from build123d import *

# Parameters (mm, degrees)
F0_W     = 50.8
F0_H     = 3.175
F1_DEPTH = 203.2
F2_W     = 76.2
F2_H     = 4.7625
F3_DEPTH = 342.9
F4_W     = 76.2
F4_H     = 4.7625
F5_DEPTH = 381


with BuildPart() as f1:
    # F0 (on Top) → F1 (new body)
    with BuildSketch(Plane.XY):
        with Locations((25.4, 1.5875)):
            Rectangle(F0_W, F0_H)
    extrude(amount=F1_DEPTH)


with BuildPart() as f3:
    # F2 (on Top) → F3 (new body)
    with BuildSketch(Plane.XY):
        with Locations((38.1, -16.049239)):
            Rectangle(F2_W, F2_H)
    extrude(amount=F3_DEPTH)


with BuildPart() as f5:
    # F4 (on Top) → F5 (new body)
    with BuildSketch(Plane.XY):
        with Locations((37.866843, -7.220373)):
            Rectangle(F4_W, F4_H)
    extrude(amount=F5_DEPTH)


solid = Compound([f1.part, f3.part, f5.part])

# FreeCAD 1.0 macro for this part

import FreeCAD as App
import Part
import Sketcher
from FreeCAD import Vector
Q = App.Units.Quantity


def add_polygon(sketch, points):
    """Adds a closed chain of lines whose ends are joined by coincident constraints."""
    first, n = sketch.GeometryCount, len(points)
    for a, b in zip(points, points[1:] + points[:1]):
        sketch.addGeometry(Part.LineSegment(App.Vector(*a, 0), App.Vector(*b, 0)), False)
    for i in range(n):
        sketch.addConstraint(Sketcher.Constraint("Coincident", first + i, 2, first + (i + 1) % n, 1))

doc = App.newDocument("Part")
body = doc.addObject("PartDesign::Body", "Body")

sketch1 = body.newObject("Sketcher::SketchObject", "Sketch")
sketch1.AttachmentSupport = (doc.getObject("XY_Plane"), [""])
sketch1.MapMode = "FlatFace"
add_polygon(sketch1, [(0, 3.2), (0, 0), (50.8, 0), (50.8, 3.2)])
sketch1.addConstraint([
    Sketcher.Constraint("Vertical", 0),
    Sketcher.Constraint("Horizontal", 1),
    Sketcher.Constraint("Vertical", 2),
    Sketcher.Constraint("Horizontal", 3),
    Sketcher.Constraint("Coincident", 0, 2, -1, 1),
    Sketcher.Constraint("DistanceX", 1, 1, 1, 2, Q("2 in")),
    Sketcher.Constraint("DistanceY", 0, 2, 0, 1, Q("0.125 in")),
])
pad1 = body.newObject("PartDesign::Pad", "Pad")
pad1.Profile = sketch1
pad1.Length = Q("8 in")
body2 = doc.addObject("PartDesign::Body", "Body001")

sketch2 = body2.newObject("Sketcher::SketchObject", "Sketch001")
sketch2.AttachmentSupport = (doc.getObject("XY_Plane001"), [""])
sketch2.MapMode = "FlatFace"
add_polygon(sketch2, [(0, -13.7), (0, -18.4), (76.2, -18.4), (76.2, -13.7)])
sketch2.addConstraint([
    Sketcher.Constraint("Vertical", 0),
    Sketcher.Constraint("Horizontal", 1),
    Sketcher.Constraint("Vertical", 2),
    Sketcher.Constraint("Horizontal", 3),
    Sketcher.Constraint("PointOnObject", 0, 2, -2),
    Sketcher.Constraint("DistanceX", 1, 1, 1, 2, Q("3 in")),
    Sketcher.Constraint("DistanceY", 0, 2, 0, 1, Q("0.1875 in")),
    Sketcher.Constraint("DistanceY", 0, 2, -1, 1, Q("18.430489 mm")),
])
pad2 = body2.newObject("PartDesign::Pad", "Pad001")
pad2.Profile = sketch2
pad2.Length = Q("13.5 in")
body3 = doc.addObject("PartDesign::Body", "Body002")

sketch3 = body3.newObject("Sketcher::SketchObject", "Sketch002")
sketch3.AttachmentSupport = (doc.getObject("XY_Plane002"), [""])
sketch3.MapMode = "FlatFace"
add_polygon(sketch3, [(-0.2, -4.8), (-0.2, -9.6), (76, -9.6), (76, -4.8)])
sketch3.addConstraint([
    Sketcher.Constraint("Vertical", 0),
    Sketcher.Constraint("Horizontal", 1),
    Sketcher.Constraint("Vertical", 2),
    Sketcher.Constraint("Horizontal", 3),
    Sketcher.Constraint("DistanceX", 1, 1, 1, 2, Q("3 in")),
    Sketcher.Constraint("DistanceY", 0, 2, 0, 1, Q("0.1875 in")),
    Sketcher.Constraint("DistanceX", 0, 2, -1, 1, Q("0.233157 mm")),
    Sketcher.Constraint("DistanceY", 0, 2, -1, 1, Q("9.601623 mm")),
])
pad3 = body3.newObject("PartDesign::Pad", "Pad002")
pad3.Profile = sketch3
pad3.Length = Q("15 in")

doc.recompute()
